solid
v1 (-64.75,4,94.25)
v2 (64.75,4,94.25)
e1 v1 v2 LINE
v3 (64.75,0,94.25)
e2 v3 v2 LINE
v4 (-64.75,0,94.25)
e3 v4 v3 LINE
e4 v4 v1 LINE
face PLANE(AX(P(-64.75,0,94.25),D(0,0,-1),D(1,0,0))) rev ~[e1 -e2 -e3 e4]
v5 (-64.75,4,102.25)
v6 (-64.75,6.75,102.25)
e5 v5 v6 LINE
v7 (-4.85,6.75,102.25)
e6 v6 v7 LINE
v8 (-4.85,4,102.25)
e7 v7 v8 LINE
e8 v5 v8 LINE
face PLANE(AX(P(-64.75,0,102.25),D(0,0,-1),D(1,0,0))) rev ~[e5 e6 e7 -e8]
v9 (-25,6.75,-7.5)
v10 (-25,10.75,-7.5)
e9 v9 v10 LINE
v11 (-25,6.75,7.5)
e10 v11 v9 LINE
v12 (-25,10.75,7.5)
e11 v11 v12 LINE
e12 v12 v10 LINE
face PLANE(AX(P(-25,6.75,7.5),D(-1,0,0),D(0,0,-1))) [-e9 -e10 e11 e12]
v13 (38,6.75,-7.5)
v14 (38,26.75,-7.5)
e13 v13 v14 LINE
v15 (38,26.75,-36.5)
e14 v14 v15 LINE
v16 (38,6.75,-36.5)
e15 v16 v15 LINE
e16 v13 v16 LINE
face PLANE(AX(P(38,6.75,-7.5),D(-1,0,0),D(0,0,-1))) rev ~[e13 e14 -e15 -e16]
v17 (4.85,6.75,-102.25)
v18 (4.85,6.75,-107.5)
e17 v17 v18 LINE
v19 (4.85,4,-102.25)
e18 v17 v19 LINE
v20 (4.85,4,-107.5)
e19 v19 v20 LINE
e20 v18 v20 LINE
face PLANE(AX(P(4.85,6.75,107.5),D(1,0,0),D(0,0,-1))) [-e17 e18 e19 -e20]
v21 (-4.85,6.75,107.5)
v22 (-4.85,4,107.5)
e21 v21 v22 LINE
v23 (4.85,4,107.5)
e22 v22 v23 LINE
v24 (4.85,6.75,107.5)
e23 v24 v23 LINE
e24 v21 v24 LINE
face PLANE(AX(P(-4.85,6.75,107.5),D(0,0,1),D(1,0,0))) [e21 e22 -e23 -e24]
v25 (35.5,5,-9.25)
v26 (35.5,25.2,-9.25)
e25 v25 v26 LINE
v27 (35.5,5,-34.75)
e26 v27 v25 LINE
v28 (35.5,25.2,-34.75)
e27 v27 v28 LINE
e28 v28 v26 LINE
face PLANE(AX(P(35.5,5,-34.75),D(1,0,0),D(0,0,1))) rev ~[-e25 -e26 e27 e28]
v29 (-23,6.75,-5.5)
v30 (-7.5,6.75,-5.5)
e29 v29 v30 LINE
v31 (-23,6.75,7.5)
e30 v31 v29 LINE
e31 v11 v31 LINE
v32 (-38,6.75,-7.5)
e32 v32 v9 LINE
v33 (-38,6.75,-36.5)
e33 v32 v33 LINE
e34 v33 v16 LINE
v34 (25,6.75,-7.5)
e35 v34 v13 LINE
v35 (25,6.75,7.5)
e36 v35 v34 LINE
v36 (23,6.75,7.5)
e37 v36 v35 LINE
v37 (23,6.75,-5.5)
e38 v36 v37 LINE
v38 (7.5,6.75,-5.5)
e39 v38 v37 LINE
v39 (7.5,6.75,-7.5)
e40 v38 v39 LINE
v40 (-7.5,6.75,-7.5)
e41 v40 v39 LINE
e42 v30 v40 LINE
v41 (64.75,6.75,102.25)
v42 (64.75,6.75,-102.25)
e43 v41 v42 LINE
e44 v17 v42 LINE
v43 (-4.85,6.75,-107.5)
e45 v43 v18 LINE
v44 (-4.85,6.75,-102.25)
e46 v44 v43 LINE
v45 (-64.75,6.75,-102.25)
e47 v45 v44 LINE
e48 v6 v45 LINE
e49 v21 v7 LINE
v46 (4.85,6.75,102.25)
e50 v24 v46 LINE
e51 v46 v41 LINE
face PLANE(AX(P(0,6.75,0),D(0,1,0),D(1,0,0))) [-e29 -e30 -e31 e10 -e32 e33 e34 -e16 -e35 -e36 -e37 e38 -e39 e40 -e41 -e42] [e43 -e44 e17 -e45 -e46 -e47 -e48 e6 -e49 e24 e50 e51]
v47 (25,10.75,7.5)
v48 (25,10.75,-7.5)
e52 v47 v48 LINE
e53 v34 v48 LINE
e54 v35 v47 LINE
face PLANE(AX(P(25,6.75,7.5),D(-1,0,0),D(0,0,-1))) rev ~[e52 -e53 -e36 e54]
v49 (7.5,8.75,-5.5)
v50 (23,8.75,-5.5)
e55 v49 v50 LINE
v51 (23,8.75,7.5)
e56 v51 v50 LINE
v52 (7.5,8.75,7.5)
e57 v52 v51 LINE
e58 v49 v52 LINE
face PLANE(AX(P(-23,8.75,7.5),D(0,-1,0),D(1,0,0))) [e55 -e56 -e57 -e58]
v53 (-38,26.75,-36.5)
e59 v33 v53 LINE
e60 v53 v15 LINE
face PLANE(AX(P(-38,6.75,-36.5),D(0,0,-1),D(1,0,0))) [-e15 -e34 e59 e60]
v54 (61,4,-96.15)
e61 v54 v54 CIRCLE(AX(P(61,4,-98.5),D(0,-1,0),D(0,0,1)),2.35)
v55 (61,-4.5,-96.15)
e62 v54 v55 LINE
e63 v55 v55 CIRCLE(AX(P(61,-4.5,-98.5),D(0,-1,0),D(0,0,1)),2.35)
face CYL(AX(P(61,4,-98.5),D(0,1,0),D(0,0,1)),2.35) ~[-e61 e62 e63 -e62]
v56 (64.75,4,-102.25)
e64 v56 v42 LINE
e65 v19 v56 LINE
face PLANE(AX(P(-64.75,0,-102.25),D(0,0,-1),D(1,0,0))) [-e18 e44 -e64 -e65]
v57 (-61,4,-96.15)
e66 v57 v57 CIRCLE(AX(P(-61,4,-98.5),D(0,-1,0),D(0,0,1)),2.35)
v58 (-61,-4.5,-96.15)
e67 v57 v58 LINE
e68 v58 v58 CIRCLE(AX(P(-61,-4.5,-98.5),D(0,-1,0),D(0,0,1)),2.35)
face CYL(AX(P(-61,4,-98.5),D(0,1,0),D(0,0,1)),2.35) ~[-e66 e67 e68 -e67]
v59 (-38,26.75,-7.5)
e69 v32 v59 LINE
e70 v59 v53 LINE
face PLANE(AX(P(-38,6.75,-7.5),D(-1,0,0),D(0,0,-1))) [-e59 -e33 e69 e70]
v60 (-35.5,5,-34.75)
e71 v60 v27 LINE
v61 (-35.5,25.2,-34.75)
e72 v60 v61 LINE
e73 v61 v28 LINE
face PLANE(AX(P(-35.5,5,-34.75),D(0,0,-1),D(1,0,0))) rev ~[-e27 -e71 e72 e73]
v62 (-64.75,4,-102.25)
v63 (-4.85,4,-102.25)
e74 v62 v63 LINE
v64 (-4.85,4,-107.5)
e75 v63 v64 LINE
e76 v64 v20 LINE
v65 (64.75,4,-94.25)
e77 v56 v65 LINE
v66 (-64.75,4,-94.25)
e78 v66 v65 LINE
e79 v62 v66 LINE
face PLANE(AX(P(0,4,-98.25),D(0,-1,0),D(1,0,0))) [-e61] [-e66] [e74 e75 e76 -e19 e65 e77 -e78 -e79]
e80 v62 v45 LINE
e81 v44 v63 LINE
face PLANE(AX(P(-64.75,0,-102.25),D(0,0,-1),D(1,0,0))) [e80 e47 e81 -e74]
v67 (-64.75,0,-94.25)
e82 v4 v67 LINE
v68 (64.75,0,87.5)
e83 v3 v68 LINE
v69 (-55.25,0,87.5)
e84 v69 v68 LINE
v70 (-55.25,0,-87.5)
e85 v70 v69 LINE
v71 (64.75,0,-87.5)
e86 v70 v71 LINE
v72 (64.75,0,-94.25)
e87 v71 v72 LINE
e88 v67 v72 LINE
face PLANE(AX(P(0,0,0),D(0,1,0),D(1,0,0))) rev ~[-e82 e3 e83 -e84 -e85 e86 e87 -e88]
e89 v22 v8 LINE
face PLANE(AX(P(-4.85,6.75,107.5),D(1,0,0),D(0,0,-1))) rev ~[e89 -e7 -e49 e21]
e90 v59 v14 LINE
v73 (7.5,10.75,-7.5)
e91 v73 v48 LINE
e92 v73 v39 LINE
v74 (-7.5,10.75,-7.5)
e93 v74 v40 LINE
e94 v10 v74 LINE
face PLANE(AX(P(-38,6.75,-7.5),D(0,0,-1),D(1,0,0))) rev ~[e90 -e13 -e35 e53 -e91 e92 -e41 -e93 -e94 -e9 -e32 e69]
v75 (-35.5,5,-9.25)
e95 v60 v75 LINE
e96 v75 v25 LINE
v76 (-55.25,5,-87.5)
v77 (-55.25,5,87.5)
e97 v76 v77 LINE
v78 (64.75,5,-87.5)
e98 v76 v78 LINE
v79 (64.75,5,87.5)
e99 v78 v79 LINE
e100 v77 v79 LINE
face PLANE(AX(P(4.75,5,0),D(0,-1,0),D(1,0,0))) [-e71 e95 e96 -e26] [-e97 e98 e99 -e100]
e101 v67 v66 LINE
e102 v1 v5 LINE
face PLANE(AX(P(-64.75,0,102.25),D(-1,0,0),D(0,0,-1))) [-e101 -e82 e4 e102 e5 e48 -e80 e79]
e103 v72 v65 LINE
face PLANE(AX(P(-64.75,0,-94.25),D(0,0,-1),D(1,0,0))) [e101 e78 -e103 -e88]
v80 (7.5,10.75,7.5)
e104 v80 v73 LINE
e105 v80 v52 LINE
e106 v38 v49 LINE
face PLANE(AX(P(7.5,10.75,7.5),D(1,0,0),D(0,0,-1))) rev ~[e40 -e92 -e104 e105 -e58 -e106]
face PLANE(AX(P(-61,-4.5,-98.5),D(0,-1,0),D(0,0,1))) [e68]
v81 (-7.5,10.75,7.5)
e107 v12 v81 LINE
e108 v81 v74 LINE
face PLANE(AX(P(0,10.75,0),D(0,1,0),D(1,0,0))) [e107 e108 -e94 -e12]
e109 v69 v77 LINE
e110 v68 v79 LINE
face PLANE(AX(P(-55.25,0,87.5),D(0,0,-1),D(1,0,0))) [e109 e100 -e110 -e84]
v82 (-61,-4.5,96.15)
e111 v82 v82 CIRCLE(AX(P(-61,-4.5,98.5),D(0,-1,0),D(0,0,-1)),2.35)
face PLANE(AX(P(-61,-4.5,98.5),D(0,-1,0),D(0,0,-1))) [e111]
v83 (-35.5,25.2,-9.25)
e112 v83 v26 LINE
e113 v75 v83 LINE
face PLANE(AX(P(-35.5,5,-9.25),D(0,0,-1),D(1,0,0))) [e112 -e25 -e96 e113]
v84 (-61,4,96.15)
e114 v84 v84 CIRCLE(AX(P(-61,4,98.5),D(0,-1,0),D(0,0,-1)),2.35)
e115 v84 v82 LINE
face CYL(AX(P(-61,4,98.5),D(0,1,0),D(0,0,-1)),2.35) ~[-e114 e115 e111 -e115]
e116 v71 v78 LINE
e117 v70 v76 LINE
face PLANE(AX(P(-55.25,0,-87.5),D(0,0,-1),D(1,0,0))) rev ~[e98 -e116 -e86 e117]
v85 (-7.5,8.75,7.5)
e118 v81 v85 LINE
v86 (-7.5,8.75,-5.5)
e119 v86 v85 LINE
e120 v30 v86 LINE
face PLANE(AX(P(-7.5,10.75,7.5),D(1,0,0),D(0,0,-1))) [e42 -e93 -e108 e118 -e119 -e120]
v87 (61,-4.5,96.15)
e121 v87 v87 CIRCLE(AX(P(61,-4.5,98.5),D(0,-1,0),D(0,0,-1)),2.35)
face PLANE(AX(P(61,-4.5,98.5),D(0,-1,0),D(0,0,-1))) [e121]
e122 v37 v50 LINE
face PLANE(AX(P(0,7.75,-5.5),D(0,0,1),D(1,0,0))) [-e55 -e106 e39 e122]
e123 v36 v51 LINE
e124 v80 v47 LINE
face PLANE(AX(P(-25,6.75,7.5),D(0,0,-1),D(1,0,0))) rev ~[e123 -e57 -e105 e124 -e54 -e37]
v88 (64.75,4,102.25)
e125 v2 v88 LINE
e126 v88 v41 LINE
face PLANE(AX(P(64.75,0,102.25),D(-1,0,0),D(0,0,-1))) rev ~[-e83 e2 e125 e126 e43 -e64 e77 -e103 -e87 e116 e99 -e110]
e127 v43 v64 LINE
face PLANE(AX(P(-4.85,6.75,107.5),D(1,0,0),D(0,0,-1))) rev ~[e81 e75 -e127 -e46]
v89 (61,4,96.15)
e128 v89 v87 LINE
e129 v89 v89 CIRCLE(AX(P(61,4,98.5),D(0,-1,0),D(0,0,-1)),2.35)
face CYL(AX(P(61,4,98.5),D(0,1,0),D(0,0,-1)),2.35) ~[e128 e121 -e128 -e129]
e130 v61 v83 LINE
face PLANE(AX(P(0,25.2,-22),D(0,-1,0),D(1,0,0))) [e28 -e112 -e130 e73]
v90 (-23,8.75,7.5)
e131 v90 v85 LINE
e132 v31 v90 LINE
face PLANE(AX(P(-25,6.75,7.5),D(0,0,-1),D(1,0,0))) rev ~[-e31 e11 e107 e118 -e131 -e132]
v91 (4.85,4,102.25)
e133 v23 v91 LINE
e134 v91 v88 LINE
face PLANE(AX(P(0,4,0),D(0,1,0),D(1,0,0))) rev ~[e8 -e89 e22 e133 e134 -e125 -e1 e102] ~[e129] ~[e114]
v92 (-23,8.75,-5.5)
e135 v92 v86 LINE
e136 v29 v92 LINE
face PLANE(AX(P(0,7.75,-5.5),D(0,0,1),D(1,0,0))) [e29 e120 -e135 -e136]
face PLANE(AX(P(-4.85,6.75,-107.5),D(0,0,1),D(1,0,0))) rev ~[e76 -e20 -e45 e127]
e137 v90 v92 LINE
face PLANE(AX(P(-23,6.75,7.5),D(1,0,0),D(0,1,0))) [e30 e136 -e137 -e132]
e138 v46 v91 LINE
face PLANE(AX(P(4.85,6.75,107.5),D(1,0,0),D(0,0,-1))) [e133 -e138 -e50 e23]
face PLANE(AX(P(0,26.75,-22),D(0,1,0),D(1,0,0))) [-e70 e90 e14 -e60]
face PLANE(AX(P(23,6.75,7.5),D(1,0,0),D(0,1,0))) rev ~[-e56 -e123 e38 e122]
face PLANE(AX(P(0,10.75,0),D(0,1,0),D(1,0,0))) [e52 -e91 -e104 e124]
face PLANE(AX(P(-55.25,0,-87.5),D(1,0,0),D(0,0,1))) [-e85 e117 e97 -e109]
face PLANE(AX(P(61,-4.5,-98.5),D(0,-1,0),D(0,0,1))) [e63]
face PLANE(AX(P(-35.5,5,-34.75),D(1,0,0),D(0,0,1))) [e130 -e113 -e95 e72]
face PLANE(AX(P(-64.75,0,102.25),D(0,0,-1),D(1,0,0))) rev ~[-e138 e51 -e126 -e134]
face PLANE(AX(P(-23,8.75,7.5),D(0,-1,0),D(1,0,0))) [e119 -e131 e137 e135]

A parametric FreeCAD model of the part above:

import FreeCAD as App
import Part
import Sketcher

V = App.Vector


def add_polygon(sketch, points):
    """Adds a closed chain of lines whose ends are joined by coincident constraints."""
    first, n = sketch.GeometryCount, len(points)
    for a, b in zip(points, points[1:] + points[:1]):
        sketch.addGeometry(Part.LineSegment(App.Vector(*a, 0), App.Vector(*b, 0)), False)
    for i in range(n):
        sketch.addConstraint(Sketcher.Constraint("Coincident", first + i, 2, first + (i + 1) % n, 1))

doc = App.newDocument("Part")
body = doc.addObject("PartDesign::Body", "Body")

# Sketch on XZ plane
sketch1 = body.newObject("Sketcher::SketchObject", "Sketch")
sketch1.AttachmentSupport = (doc.getObject("XZ_Plane"), [""])
sketch1.MapMode = "FlatFace"
add_polygon(sketch1, [(-65, -102), (-65, 102), (65, 102), (65, -102)])  # lines 0-3
sketch1.addConstraint([
    Sketcher.Constraint("Vertical", 0),
    Sketcher.Constraint("Horizontal", 1),
    Sketcher.Constraint("Vertical", 2),
    Sketcher.Constraint("Horizontal", 3),
    Sketcher.Constraint("Symmetric", 0, 2, 2, 2, -1, 1),
    Sketcher.Constraint("DistanceX", 1, 1, 1, 2, 129.5),
    Sketcher.Constraint("DistanceY", 0, 1, 0, 2, 204.5),
])
pad1 = body.newObject("PartDesign::Pad", "Pad")
pad1.Profile = sketch1
pad1.Length = 6.75
pad1.Reversed = True

# Sketch on XZ plane
sketch2 = body.newObject("Sketcher::SketchObject", "Sketch001")
sketch2.AttachmentSupport = (doc.getObject("XZ_Plane"), [""])
sketch2.MapMode = "FlatFace"
add_polygon(sketch2, [(-65, 102), (-65, 94), (65, 94), (65, 102)])  # lines 0-3
add_polygon(sketch2, [(-65, -94), (-65, -102), (65, -102), (65, -94)])  # lines 4-7
sketch2.addConstraint([
    Sketcher.Constraint("Vertical", 0),
    Sketcher.Constraint("Horizontal", 1),
    Sketcher.Constraint("Vertical", 2),
    Sketcher.Constraint("Horizontal", 3),
    Sketcher.Constraint("Vertical", 4),
    Sketcher.Constraint("Horizontal", 5),
    Sketcher.Constraint("Vertical", 6),
    Sketcher.Constraint("Horizontal", 7),
    Sketcher.Constraint("Symmetric", 2, 2, 4, 2, -1, 1),
    Sketcher.Constraint("Symmetric", 0, 2, 6, 2, -1, 1),
    Sketcher.Constraint("Vertical", 3, 2, 4, 2),
    Sketcher.Constraint("DistanceY", 0, 2, 0, 1, 8.0),
    Sketcher.Constraint("DistanceX", 1, 1, 1, 2, 129.5),
    Sketcher.Constraint("DistanceY", 4, 2, 0, 2, 196.5),
])
pocket1 = body.newObject("PartDesign::Pocket", "Pocket")
pocket1.Profile = sketch2
pocket1.Length = 4

# Sketch on XZ plane
sketch3 = body.newObject("Sketcher::SketchObject", "Sketch002")
sketch3.AttachmentSupport = (doc.getObject("XZ_Plane"), [""])
sketch3.MapMode = "FlatFace"
sketch3.AttachmentOffset = App.Placement(V(0, 0, -4), App.Rotation())
sketch3.addGeometry([
    Part.Circle(V(-61, 98.5, 0), V(0, 0, 1), 2.4),
    Part.Circle(V(61, 98.5, 0), V(0, 0, 1), 2.4),
    Part.Circle(V(61, -98.5, 0), V(0, 0, 1), 2.4),
    Part.Circle(V(-61, -98.5, 0), V(0, 0, 1), 2.4),
], False)
sketch3.addConstraint([
    Sketcher.Constraint("Equal", 0, 1),
    Sketcher.Constraint("Equal", 1, 2),
    Sketcher.Constraint("Equal", 2, 3),
    Sketcher.Constraint("Symmetric", 0, 3, 2, 3, -1, 1),
    Sketcher.Constraint("Symmetric", 1, 3, 3, 3, -1, 1),
    Sketcher.Constraint("Symmetric", 0, 3, 1, 3, -2),
    Sketcher.Constraint("Diameter", 0, 4.7),
    Sketcher.Constraint("DistanceX", 0, 3, -1, 1, 61.0),
    Sketcher.Constraint("DistanceY", 2, 3, 1, 3, 197.0),
])
pad2 = body.newObject("PartDesign::Pad", "Pad001")
pad2.Profile = sketch3
pad2.Length = 8.5

# Sketch on XZ plane
sketch4 = body.newObject("Sketcher::SketchObject", "Sketch003")
sketch4.AttachmentSupport = (doc.getObject("XZ_Plane"), [""])
sketch4.MapMode = "FlatFace"
add_polygon(sketch4, [(-55, 88), (-55, -88), (65, -88), (65, 88)])  # lines 0-3
sketch4.addConstraint([
    Sketcher.Constraint("Vertical", 0),
    Sketcher.Constraint("Horizontal", 1),
    Sketcher.Constraint("Vertical", 2),
    Sketcher.Constraint("Horizontal", 3),
    Sketcher.Constraint("DistanceX", 1, 1, 1, 2, 120.0),
    Sketcher.Constraint("DistanceY", 0, 2, 0, 1, 175.0),
    Sketcher.Constraint("DistanceY", 0, 2, -1, 1, 87.5),
    Sketcher.Constraint("DistanceX", 0, 2, -1, 1, 55.25),
])
pocket2 = body.newObject("PartDesign::Pocket", "Pocket001")
pocket2.Profile = sketch4
pocket2.Length = 5

# Sketch on XZ plane
sketch5 = body.newObject("Sketcher::SketchObject", "Sketch004")
sketch5.AttachmentSupport = (doc.getObject("XZ_Plane"), [""])
sketch5.MapMode = "FlatFace"
sketch5.AttachmentOffset = App.Placement(V(0, 0, -6.75), App.Rotation())
add_polygon(sketch5, [(-5, -108), (-5, 108), (5, 108), (5, -108)])  # lines 0-3
sketch5.addConstraint([
    Sketcher.Constraint("Vertical", 0),
    Sketcher.Constraint("Horizontal", 1),
    Sketcher.Constraint("Vertical", 2),
    Sketcher.Constraint("Horizontal", 3),
    Sketcher.Constraint("Symmetric", 0, 2, 2, 2, -1, 1),
    Sketcher.Constraint("DistanceY", 0, 1, 0, 2, 215.0),
    Sketcher.Constraint("DistanceX", 1, 1, 1, 2, 9.7),
])
pad3 = body.newObject("PartDesign::Pad", "Pad002")
pad3.Profile = sketch5
pad3.Length = 2.75

# Sketch on XZ plane
sketch6 = body.newObject("Sketcher::SketchObject", "Sketch005")
sketch6.AttachmentSupport = (doc.getObject("XZ_Plane"), [""])
sketch6.MapMode = "FlatFace"
sketch6.AttachmentOffset = App.Placement(V(0, 0, -6.75), App.Rotation())
add_polygon(sketch6, [(-25, -8), (-25, 8), (25, 8), (25, -8)])  # lines 0-3
sketch6.addConstraint([
    Sketcher.Constraint("Vertical", 0),
    Sketcher.Constraint("Horizontal", 1),
    Sketcher.Constraint("Vertical", 2),
    Sketcher.Constraint("Horizontal", 3),
    Sketcher.Constraint("Symmetric", 0, 2, 2, 2, -1, 1),
    Sketcher.Constraint("DistanceX", 1, 1, 1, 2, 50.0),
    Sketcher.Constraint("DistanceY", 0, 1, 0, 2, 15.0),
])
pad4 = body.newObject("PartDesign::Pad", "Pad003")
pad4.Profile = sketch6
pad4.Length = 4
pad4.Reversed = True

# Sketch on XY plane
sketch7 = body.newObject("Sketcher::SketchObject", "Sketch006")
sketch7.AttachmentSupport = (doc.getObject("XY_Plane"), [""])
sketch7.MapMode = "FlatFace"
sketch7.AttachmentOffset = App.Placement(V(0, 0, 7.5), App.Rotation())
add_polygon(sketch7, [(-23, 8.8), (-23, 6.8), (23, 6.8), (23, 8.8)])  # lines 0-3
sketch7.addConstraint([
    Sketcher.Constraint("Vertical", 0),
    Sketcher.Constraint("Horizontal", 1),
    Sketcher.Constraint("Vertical", 2),
    Sketcher.Constraint("Horizontal", 3),
    Sketcher.Constraint("DistanceX", 1, 1, 1, 2, 46.0),
    Sketcher.Constraint("DistanceY", 0, 2, 0, 1, 2.0),
    Sketcher.Constraint("DistanceX", 0, 2, -1, 1, 23.0),
    Sketcher.Constraint("DistanceY", -1, 1, 0, 2, 6.75),
])
pocket3 = body.newObject("PartDesign::Pocket", "Pocket002")
pocket3.Profile = sketch7
pocket3.Length = 13

# Sketch on XZ plane
sketch8 = body.newObject("Sketcher::SketchObject", "Sketch007")
sketch8.AttachmentSupport = (doc.getObject("XZ_Plane"), [""])
sketch8.MapMode = "FlatFace"
sketch8.AttachmentOffset = App.Placement(V(0, 0, -10.75), App.Rotation())
add_polygon(sketch8, [(-8, -8), (-8, 8), (8, 8), (8, -8)])  # lines 0-3
sketch8.addConstraint([
    Sketcher.Constraint("Vertical", 0),
    Sketcher.Constraint("Horizontal", 1),
    Sketcher.Constraint("Vertical", 2),
    Sketcher.Constraint("Horizontal", 3),
    Sketcher.Constraint("Symmetric", 0, 2, 2, 2, -1, 1),
    Sketcher.Constraint("Equal", 3, 0),
    Sketcher.Constraint("DistanceX", 1, 1, 1, 2, 15.0),
])
pocket4 = body.newObject("PartDesign::Pocket", "Pocket003")
pocket4.Profile = sketch8
pocket4.Length = 4
pocket4.Reversed = True

# Sketch on XZ plane
sketch9 = body.newObject("Sketcher::SketchObject", "Sketch008")
sketch9.AttachmentSupport = (doc.getObject("XZ_Plane"), [""])
sketch9.MapMode = "FlatFace"
sketch9.AttachmentOffset = App.Placement(V(0, 0, -6.75), App.Rotation())
add_polygon(sketch9, [(-38, -36), (-38, -8), (38, -8), (38, -36)])  # lines 0-3
sketch9.addConstraint([
    Sketcher.Constraint("Vertical", 0),
    Sketcher.Constraint("Horizontal", 1),
    Sketcher.Constraint("Vertical", 2),
    Sketcher.Constraint("Horizontal", 3),
    Sketcher.Constraint("DistanceX", 1, 1, 1, 2, 76.0),
    Sketcher.Constraint("DistanceY", 0, 1, 0, 2, 29.0),
    Sketcher.Constraint("DistanceX", 0, 2, -1, 1, 38.0),
    Sketcher.Constraint("DistanceY", 0, 2, -1, 1, 7.5),
])
pad5 = body.newObject("PartDesign::Pad", "Pad004")
pad5.Profile = sketch9
pad5.Length = 20
pad5.Reversed = True

# Sketch on XZ plane
sketch10 = body.newObject("Sketcher::SketchObject", "Sketch009")
sketch10.AttachmentSupport = (doc.getObject("XZ_Plane"), [""])
sketch10.MapMode = "FlatFace"
sketch10.AttachmentOffset = App.Placement(V(0, 0, -4), App.Rotation())
add_polygon(sketch10, [(-5, 88), (-5, -88), (5, -88), (5, 88)])  # lines 0-3
sketch10.addConstraint([
    Sketcher.Constraint("Vertical", 0),
    Sketcher.Constraint("Horizontal", 1),
    Sketcher.Constraint("Vertical", 2),
    Sketcher.Constraint("Horizontal", 3),
    Sketcher.Constraint("Symmetric", 0, 2, 2, 2, -1, 1),
    Sketcher.Constraint("DistanceY", 0, 2, 0, 1, 175.0),
    Sketcher.Constraint("DistanceX", 1, 1, 1, 2, 9.7),
])
pocket5 = body.newObject("PartDesign::Pocket", "Pocket004")
pocket5.Profile = sketch10
pocket5.Length = 1

# Sketch on XZ plane
sketch11 = body.newObject("Sketcher::SketchObject", "Sketch010")
sketch11.AttachmentSupport = (doc.getObject("XZ_Plane"), [""])
sketch11.MapMode = "FlatFace"
sketch11.AttachmentOffset = App.Placement(V(0, 0, -5), App.Rotation())
add_polygon(sketch11, [(-36, -9), (-36, -35), (36, -35), (36, -9)])  # lines 0-3
sketch11.addConstraint([
    Sketcher.Constraint("Vertical", 0),
    Sketcher.Constraint("Horizontal", 1),
    Sketcher.Constraint("Vertical", 2),
    Sketcher.Constraint("Horizontal", 3),
    Sketcher.Constraint("DistanceX", 1, 1, 1, 2, 71.0),
    Sketcher.Constraint("DistanceY", 0, 2, 0, 1, 25.5),
    Sketcher.Constraint("DistanceX", 0, 2, -1, 1, 35.5),
    Sketcher.Constraint("DistanceY", 0, 2, -1, 1, 34.75),
])
pocket6 = body.newObject("PartDesign::Pocket", "Pocket005")
pocket6.Profile = sketch11
pocket6.Length = 20.2

doc.recompute()
